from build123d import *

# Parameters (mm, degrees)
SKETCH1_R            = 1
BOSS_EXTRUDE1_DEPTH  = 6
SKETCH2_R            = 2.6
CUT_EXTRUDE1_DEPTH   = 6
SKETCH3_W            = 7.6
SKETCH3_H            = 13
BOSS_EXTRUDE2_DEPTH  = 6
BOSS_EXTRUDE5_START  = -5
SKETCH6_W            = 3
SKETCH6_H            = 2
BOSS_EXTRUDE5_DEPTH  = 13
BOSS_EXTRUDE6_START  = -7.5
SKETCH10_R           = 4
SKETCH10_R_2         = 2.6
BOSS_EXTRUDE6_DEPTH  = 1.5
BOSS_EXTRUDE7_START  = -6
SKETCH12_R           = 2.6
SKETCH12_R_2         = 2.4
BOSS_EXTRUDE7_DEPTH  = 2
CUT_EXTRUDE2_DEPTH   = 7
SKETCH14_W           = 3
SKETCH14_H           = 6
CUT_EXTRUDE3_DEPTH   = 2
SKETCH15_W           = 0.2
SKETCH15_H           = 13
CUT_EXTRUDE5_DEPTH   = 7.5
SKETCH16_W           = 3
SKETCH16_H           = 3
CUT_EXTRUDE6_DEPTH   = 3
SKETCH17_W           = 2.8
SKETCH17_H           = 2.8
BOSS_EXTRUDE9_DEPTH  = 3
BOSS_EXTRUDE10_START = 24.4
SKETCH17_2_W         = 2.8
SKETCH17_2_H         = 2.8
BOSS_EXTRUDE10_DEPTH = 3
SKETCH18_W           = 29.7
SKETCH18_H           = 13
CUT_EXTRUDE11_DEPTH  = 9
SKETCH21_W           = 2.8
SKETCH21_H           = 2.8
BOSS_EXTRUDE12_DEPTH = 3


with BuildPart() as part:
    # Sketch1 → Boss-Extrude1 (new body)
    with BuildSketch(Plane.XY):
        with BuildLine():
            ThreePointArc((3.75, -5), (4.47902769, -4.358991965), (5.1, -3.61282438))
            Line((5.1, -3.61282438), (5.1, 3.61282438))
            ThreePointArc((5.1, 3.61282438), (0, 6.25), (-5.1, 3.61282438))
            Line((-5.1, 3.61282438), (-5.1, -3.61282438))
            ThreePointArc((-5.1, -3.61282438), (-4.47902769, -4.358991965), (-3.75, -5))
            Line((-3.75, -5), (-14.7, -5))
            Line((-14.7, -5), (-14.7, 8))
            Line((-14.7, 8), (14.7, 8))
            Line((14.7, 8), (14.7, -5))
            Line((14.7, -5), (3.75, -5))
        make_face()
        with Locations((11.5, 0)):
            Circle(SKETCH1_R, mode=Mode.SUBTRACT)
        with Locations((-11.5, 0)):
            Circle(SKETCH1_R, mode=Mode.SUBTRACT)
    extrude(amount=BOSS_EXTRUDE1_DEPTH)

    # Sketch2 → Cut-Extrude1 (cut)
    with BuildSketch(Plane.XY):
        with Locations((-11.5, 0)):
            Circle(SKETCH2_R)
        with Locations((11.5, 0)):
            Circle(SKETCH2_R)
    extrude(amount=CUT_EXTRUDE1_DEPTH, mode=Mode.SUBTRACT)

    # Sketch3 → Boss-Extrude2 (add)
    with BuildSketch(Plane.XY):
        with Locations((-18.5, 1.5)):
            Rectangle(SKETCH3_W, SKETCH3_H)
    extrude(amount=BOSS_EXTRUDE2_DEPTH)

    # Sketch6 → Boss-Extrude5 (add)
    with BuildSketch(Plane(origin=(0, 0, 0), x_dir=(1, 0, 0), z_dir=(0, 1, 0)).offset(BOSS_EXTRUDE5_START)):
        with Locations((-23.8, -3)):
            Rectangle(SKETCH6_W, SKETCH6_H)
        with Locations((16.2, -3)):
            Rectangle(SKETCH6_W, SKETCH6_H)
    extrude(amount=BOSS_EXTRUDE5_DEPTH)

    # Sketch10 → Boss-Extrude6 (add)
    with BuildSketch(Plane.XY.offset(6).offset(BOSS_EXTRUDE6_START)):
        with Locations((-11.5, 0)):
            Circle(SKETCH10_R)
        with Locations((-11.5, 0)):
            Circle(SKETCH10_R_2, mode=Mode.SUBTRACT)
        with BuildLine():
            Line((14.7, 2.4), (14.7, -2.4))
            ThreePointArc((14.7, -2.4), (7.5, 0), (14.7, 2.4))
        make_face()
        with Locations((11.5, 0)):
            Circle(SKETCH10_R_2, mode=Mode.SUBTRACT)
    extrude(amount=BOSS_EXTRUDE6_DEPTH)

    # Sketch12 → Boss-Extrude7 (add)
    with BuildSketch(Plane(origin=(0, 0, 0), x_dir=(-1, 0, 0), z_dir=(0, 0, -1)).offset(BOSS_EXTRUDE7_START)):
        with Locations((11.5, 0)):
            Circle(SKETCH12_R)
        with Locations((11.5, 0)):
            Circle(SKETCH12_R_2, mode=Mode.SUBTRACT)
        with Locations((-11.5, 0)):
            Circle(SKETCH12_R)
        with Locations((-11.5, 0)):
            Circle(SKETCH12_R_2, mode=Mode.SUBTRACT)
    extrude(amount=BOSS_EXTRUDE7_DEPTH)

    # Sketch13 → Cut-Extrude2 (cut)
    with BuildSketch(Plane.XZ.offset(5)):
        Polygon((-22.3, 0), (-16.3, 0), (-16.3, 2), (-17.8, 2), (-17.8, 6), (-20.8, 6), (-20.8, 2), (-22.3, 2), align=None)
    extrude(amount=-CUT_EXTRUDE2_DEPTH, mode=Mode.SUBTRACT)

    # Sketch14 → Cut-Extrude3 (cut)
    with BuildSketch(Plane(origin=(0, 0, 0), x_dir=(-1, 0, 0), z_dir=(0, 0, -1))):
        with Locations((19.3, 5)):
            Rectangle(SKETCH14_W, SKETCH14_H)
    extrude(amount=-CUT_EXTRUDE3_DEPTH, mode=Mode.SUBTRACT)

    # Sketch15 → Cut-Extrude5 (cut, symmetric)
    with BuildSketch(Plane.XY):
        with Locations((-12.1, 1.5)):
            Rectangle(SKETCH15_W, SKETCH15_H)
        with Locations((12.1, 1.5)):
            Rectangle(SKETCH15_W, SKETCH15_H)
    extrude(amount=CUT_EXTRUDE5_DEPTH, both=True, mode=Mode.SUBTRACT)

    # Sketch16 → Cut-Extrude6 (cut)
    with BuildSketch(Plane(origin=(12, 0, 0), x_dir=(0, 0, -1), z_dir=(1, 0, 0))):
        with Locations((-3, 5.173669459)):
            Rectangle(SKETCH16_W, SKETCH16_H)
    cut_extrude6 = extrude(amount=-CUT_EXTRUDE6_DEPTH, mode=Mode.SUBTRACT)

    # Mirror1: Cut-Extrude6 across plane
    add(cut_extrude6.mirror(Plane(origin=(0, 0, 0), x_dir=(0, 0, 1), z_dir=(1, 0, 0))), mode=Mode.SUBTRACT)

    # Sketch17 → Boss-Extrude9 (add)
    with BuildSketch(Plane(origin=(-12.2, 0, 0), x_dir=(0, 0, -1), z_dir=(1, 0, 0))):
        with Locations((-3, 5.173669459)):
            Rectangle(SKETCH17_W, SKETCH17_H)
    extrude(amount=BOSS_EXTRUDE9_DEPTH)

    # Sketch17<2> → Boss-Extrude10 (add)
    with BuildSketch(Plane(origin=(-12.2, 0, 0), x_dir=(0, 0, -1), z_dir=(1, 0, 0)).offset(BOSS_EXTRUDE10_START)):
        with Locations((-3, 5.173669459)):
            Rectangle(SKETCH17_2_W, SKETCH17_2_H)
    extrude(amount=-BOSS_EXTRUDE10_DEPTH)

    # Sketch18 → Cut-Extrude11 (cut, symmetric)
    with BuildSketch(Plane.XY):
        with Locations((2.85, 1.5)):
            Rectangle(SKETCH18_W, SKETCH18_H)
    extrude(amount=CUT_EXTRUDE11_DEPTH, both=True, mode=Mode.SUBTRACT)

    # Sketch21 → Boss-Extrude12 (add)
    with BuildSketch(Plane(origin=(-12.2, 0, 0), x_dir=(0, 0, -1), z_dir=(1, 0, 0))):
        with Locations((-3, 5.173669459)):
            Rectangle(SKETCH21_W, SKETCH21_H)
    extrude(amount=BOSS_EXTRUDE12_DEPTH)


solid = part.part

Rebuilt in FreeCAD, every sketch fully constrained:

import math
import FreeCAD as App
import Part
import Sketcher

V = App.Vector
Q = App.Units.Quantity


def add_polygon(sketch, points):
    """Adds a closed chain of lines whose ends are joined by coincident constraints."""
    first, n = sketch.GeometryCount, len(points)
    for a, b in zip(points, points[1:] + points[:1]):
        sketch.addGeometry(Part.LineSegment(App.Vector(*a, 0), App.Vector(*b, 0)), False)
    for i in range(n):
        sketch.addConstraint(Sketcher.Constraint("Coincident", first + i, 2, first + (i + 1) % n, 1))

doc = App.newDocument("Part")
body = doc.addObject("PartDesign::Body", "Body")
body.AllowCompound = True

# Sketch on XY plane
sketch1 = body.newObject("Sketcher::SketchObject", "Sketch")
sketch1.AttachmentSupport = (doc.getObject("XY_Plane"), [""])
sketch1.MapMode = "FlatFace"
sketch1.addGeometry([
    Part.ArcOfCircle(Part.Circle(V(0, 0, 0), V(0, 0, 1), 6.25), math.radians(-53.130102), math.radians(-35.31364)),  # 0
    Part.LineSegment(V(3.75, -5, 0), V(14.7, -5, 0)),  # 1
    Part.LineSegment(V(14.7, -5, 0), V(14.7, 8, 0)),  # 2
    Part.LineSegment(V(14.7, 8, 0), V(-14.7, 8, 0)),  # 3
    Part.LineSegment(V(-14.7, 8, 0), V(-14.7, -5, 0)),  # 4
    Part.LineSegment(V(-14.7, -5, 0), V(-3.75, -5, 0)),  # 5
    Part.ArcOfCircle(Part.Circle(V(0, 0, 0), V(0, 0, 1), 6.25), math.radians(-144.68636), math.radians(-126.869898)),  # 6
    Part.LineSegment(V(-5.1, -3.612824, 0), V(-5.1, 3.612824, 0)),  # 7
    Part.ArcOfCircle(Part.Circle(V(0, 0, 0), V(0, 0, 1), 6.25), math.radians(35.31364), math.radians(144.68636)),  # 8
    Part.LineSegment(V(5.1, 3.612824, 0), V(5.1, -3.612824, 0)),  # 9
    Part.Circle(V(11.5, 0, 0), V(0, 0, 1), 1),  # 10
    Part.Circle(V(-11.5, 0, 0), V(0, 0, 1), 1),  # 11
], False)
sketch1.addConstraint([
    Sketcher.Constraint("Coincident", 0, 1, 1, 1),
    Sketcher.Constraint("Coincident", 1, 2, 2, 1),
    Sketcher.Constraint("Coincident", 2, 2, 3, 1),
    Sketcher.Constraint("Coincident", 3, 2, 4, 1),
    Sketcher.Constraint("Coincident", 4, 2, 5, 1),
    Sketcher.Constraint("Coincident", 5, 2, 6, 2),
    Sketcher.Constraint("Coincident", 6, 1, 7, 1),
    Sketcher.Constraint("Coincident", 7, 2, 8, 2),
    Sketcher.Constraint("Coincident", 8, 1, 9, 1),
    Sketcher.Constraint("Coincident", 9, 2, 0, 2),
    Sketcher.Constraint("Horizontal", 1),
    Sketcher.Constraint("Vertical", 2),
    Sketcher.Constraint("Horizontal", 3),
    Sketcher.Constraint("Vertical", 4),
    Sketcher.Constraint("Horizontal", 5),
    Sketcher.Constraint("Vertical", 7),
    Sketcher.Constraint("Vertical", 9),
    Sketcher.Constraint("Coincident", 0, 3, -1, 1),
    Sketcher.Constraint("Coincident", 6, 3, -1, 1),
    Sketcher.Constraint("Coincident", 8, 3, -1, 1),
    Sketcher.Constraint("Equal", 0, 6),
    Sketcher.Constraint("Equal", 6, 8),
    Sketcher.Constraint("Equal", 10, 11),
    Sketcher.Constraint("Symmetric", 10, 3, 11, 3, -1, 1),
    Sketcher.Constraint("Symmetric", 1, 2, 4, 2, -2),
    Sketcher.Constraint("PointOnObject", 10, 3, -1),
    Sketcher.Constraint("Horizontal", 7, 2, 8, 1),
    Sketcher.Constraint("Diameter", 10, Q("2 mm")),
    Sketcher.Constraint("DistanceY", 2, 1, 2, 2, Q("13 mm")),
    Sketcher.Constraint("Radius", 0, Q("6.25 mm")),
    Sketcher.Constraint("DistanceX", 3, 2, 3, 1, Q("29.4 mm")),
    Sketcher.Constraint("DistanceY", 0, 1, -1, 1, Q("5 mm")),
    Sketcher.Constraint("DistanceX", 11, 3, 10, 3, Q("23 mm")),
    Sketcher.Constraint("DistanceX", 6, 1, -1, 1, Q("5.1 mm")),
])
pad1 = body.newObject("PartDesign::Pad", "Pad")
pad1.Profile = sketch1
pad1.Length = 6

# Sketch on XY plane
sketch2 = body.newObject("Sketcher::SketchObject", "Sketch001")
sketch2.AttachmentSupport = (doc.getObject("XY_Plane"), [""])
sketch2.MapMode = "FlatFace"
sketch2.addGeometry([
    Part.Circle(V(-11.5, 0, 0), V(0, 0, 1), 2.6),
    Part.Circle(V(11.5, 0, 0), V(0, 0, 1), 2.6),
], False)
sketch2.addConstraint([
    Sketcher.Constraint("Equal", 0, 1),
    Sketcher.Constraint("Symmetric", 0, 3, 1, 3, -1, 1),
    Sketcher.Constraint("PointOnObject", 0, 3, -1),
    Sketcher.Constraint("Diameter", 0, Q("5.2 mm")),
    Sketcher.Constraint("DistanceX", 0, 3, 1, 3, Q("23 mm")),
])
pocket1 = body.newObject("PartDesign::Pocket", "Pocket")
pocket1.Profile = sketch2
pocket1.Length = 6
pocket1.Reversed = True

# Sketch on XY plane
sketch3 = body.newObject("Sketcher::SketchObject", "Sketch002")
sketch3.AttachmentSupport = (doc.getObject("XY_Plane"), [""])
sketch3.MapMode = "FlatFace"
add_polygon(sketch3, [(-22.3, 8), (-22.3, -5), (-14.7, -5), (-14.7, 8)])  # lines 0-3
sketch3.addConstraint([
    Sketcher.Constraint("Vertical", 0),
    Sketcher.Constraint("Horizontal", 1),
    Sketcher.Constraint("Vertical", 2),
    Sketcher.Constraint("Horizontal", 3),
    Sketcher.Constraint("DistanceY", 0, 2, 0, 1, Q("13 mm")),
    Sketcher.Constraint("DistanceX", 1, 1, 1, 2, Q("7.6 mm")),
    Sketcher.Constraint("DistanceY", 0, 2, -1, 1, Q("5 mm")),
    Sketcher.Constraint("DistanceX", 0, 2, -1, 1, Q("22.3 mm")),
])
pad2 = body.newObject("PartDesign::Pad", "Pad001")
pad2.Profile = sketch3
pad2.Length = 6

# Sketch on XZ plane
sketch4 = body.newObject("Sketcher::SketchObject", "Sketch003")
sketch4.AttachmentSupport = (doc.getObject("XZ_Plane"), [""])
sketch4.MapMode = "FlatFace"
sketch4.AttachmentOffset = App.Placement(V(0, 0, 5), App.Rotation())
add_polygon(sketch4, [(-25.3, 2), (-25.3, 4), (-22.3, 4), (-22.3, 2)])  # lines 0-3
add_polygon(sketch4, [(14.7, 2), (14.7, 4), (17.7, 4), (17.7, 2)])  # lines 4-7
sketch4.addConstraint([
    Sketcher.Constraint("Vertical", 0),
    Sketcher.Constraint("Horizontal", 1),
    Sketcher.Constraint("Vertical", 2),
    Sketcher.Constraint("Horizontal", 3),
    Sketcher.Constraint("Vertical", 4),
    Sketcher.Constraint("Horizontal", 5),
    Sketcher.Constraint("Vertical", 6),
    Sketcher.Constraint("Horizontal", 7),
    Sketcher.Constraint("Horizontal", 1, 2, 4, 2),
    Sketcher.Constraint("Horizontal", 3, 2, 6, 2),
    Sketcher.Constraint("Equal", 3, 5),
    Sketcher.Constraint("DistanceX", 1, 1, 1, 2, Q("3 mm")),
    Sketcher.Constraint("DistanceY", 0, 1, 0, 2, Q("2 mm")),
    Sketcher.Constraint("DistanceY", -1, 1, 0, 2, Q("4 mm")),
    Sketcher.Constraint("DistanceX", 1, 2, 4, 2, Q("37 mm")),
    Sketcher.Constraint("DistanceX", 0, 2, -1, 1, Q("25.3 mm")),
])
pad3 = body.newObject("PartDesign::Pad", "Pad002")
pad3.Profile = sketch4
pad3.Length = 13
pad3.Reversed = True

# Sketch on XY plane
sketch5 = body.newObject("Sketcher::SketchObject", "Sketch004")
sketch5.AttachmentSupport = (doc.getObject("XY_Plane"), [""])
sketch5.MapMode = "FlatFace"
sketch5.AttachmentOffset = App.Placement(V(0, 0, -1.5), App.Rotation())
sketch5.addGeometry([
    Part.Circle(V(-11.5, 0, 0), V(0, 0, 1), 4),  # 0
    Part.Circle(V(-11.5, 0, 0), V(0, 0, 1), 2.6),  # 1
    Part.LineSegment(V(14.7, -2.4, 0), V(14.7, 2.4, 0)),  # 2
    Part.ArcOfCircle(Part.Circle(V(11.5, 0, 0), V(0, 0, 1), 4), math.radians(36.869898), math.radians(323.130102)),  # 3
    Part.Circle(V(11.5, 0, 0), V(0, 0, 1), 2.6),  # 4
], False)
sketch5.addConstraint([
    Sketcher.Constraint("Coincident", 2, 1, 3, 2),
    Sketcher.Constraint("Coincident", 3, 1, 2, 2),
    Sketcher.Constraint("Vertical", 2),
    Sketcher.Constraint("Coincident", 1, 3, 0, 3),
    Sketcher.Constraint("Coincident", 4, 3, 3, 3),
    Sketcher.Constraint("Equal", 0, 3),
    Sketcher.Constraint("Equal", 1, 4),
    Sketcher.Constraint("Symmetric", 0, 3, 3, 3, -1, 1),
    Sketcher.Constraint("PointOnObject", 0, 3, -1),
    Sketcher.Constraint("Diameter", 0, Q("8 mm")),
    Sketcher.Constraint("Diameter", 1, Q("5.2 mm")),
    Sketcher.Constraint("DistanceY", 2, 1, 2, 2, Q("4.8 mm")),
    Sketcher.Constraint("DistanceX", 0, 3, 3, 3, Q("23 mm")),
])
pad4 = body.newObject("PartDesign::Pad", "Pad003")
pad4.Profile = sketch5
pad4.Length = 1.5

# Sketch on XY plane
sketch6 = body.newObject("Sketcher::SketchObject", "Sketch005")
sketch6.AttachmentSupport = (doc.getObject("XY_Plane"), [""])
sketch6.MapMode = "FlatFace"
sketch6.AttachmentOffset = App.Placement(V(0, 0, 6), App.Rotation())
sketch6.addGeometry([
    Part.Circle(V(-11.5, 0, 0), V(0, 0, 1), 2.6),
    Part.Circle(V(-11.5, 0, 0), V(0, 0, 1), 2.4),
    Part.Circle(V(11.5, 0, 0), V(0, 0, 1), 2.6),
    Part.Circle(V(11.5, 0, 0), V(0, 0, 1), 2.4),
], False)
sketch6.addConstraint([
    Sketcher.Constraint("Coincident", 1, 3, 0, 3),
    Sketcher.Constraint("Coincident", 3, 3, 2, 3),
    Sketcher.Constraint("Equal", 0, 2),
    Sketcher.Constraint("Equal", 1, 3),
    Sketcher.Constraint("Symmetric", 0, 3, 2, 3, -1, 1),
    Sketcher.Constraint("PointOnObject", 0, 3, -1),
    Sketcher.Constraint("Diameter", 0, Q("5.2 mm")),
    Sketcher.Constraint("Diameter", 1, Q("4.8 mm")),
    Sketcher.Constraint("DistanceX", 0, 3, 2, 3, Q("23 mm")),
])
pad5 = body.newObject("PartDesign::Pad", "Pad004")
pad5.Profile = sketch6
pad5.Length = 2
pad5.Reversed = True

# Sketch on XZ plane
sketch7 = body.newObject("Sketcher::SketchObject", "Sketch006")
sketch7.AttachmentSupport = (doc.getObject("XZ_Plane"), [""])
sketch7.MapMode = "FlatFace"
sketch7.AttachmentOffset = App.Placement(V(0, 0, 5), App.Rotation())
add_polygon(sketch7, [(-22.3, 0), (-16.3, 0), (-16.3, 2), (-17.8, 2), (-17.8, 6), (-20.8, 6), (-20.8, 2), (-22.3, 2)])  # lines 0-7
sketch7.addConstraint([
    Sketcher.Constraint("Horizontal", 0),
    Sketcher.Constraint("Vertical", 1),
    Sketcher.Constraint("Horizontal", 2),
    Sketcher.Constraint("Vertical", 3),
    Sketcher.Constraint("Horizontal", 4),
    Sketcher.Constraint("Vertical", 5),
    Sketcher.Constraint("Horizontal", 6),
    Sketcher.Constraint("Vertical", 7),
    Sketcher.Constraint("PointOnObject", 0, 2, -1),
    Sketcher.Constraint("Horizontal", 2, 2, 5, 2),
    Sketcher.Constraint("Equal", 2, 6),
    Sketcher.Constraint("DistanceX", 0, 1, 0, 2, Q("6 mm")),
    Sketcher.Constraint("DistanceX", 4, 2, 4, 1, Q("3 mm")),
    Sketcher.Constraint("DistanceY", 1, 1, 1, 2, Q("2 mm")),
    Sketcher.Constraint("DistanceY", 3, 1, 3, 2, Q("4 mm")),
    Sketcher.Constraint("DistanceX", 0, 2, -1, 1, Q("16.3 mm")),
])
pocket2 = body.newObject("PartDesign::Pocket", "Pocket001")
pocket2.Profile = sketch7
pocket2.Length = 7

# Sketch on XY plane
sketch8 = body.newObject("Sketcher::SketchObject", "Sketch007")
sketch8.AttachmentSupport = (doc.getObject("XY_Plane"), [""])
sketch8.MapMode = "FlatFace"
add_polygon(sketch8, [(-17.8, 8), (-17.8, 2), (-20.8, 2), (-20.8, 8)])  # lines 0-3
sketch8.addConstraint([
    Sketcher.Constraint("Vertical", 0),
    Sketcher.Constraint("Horizontal", 1),
    Sketcher.Constraint("Vertical", 2),
    Sketcher.Constraint("Horizontal", 3),
    Sketcher.Constraint("DistanceX", 1, 2, 1, 1, Q("3 mm")),
    Sketcher.Constraint("DistanceY", 0, 2, 0, 1, Q("6 mm")),
    Sketcher.Constraint("DistanceY", -1, 1, 0, 2, Q("2 mm")),
    Sketcher.Constraint("DistanceX", 0, 2, -1, 1, Q("17.8 mm")),
])
pocket3 = body.newObject("PartDesign::Pocket", "Pocket002")
pocket3.Profile = sketch8
pocket3.Length = 2
pocket3.Reversed = True

# Sketch on XY plane
sketch9 = body.newObject("Sketcher::SketchObject", "Sketch008")
sketch9.AttachmentSupport = (doc.getObject("XY_Plane"), [""])
sketch9.MapMode = "FlatFace"
add_polygon(sketch9, [(-12.2, 8), (-12.2, -5), (-12, -5), (-12, 8)])  # lines 0-3
add_polygon(sketch9, [(12, 8), (12, -5), (12.2, -5), (12.2, 8)])  # lines 4-7
sketch9.addConstraint([
    Sketcher.Constraint("Vertical", 0),
    Sketcher.Constraint("Horizontal", 1),
    Sketcher.Constraint("Vertical", 2),
    Sketcher.Constraint("Horizontal", 3),
    Sketcher.Constraint("Vertical", 4),
    Sketcher.Constraint("Horizontal", 5),
    Sketcher.Constraint("Vertical", 6),
    Sketcher.Constraint("Horizontal", 7),
    Sketcher.Constraint("Symmetric", 1, 2, 4, 2, -2),
    Sketcher.Constraint("Symmetric", 3, 2, 6, 2, -2),
    Sketcher.Constraint("DistanceY", 0, 2, 0, 1, Q("13 mm")),
    Sketcher.Constraint("DistanceX", 1, 1, 1, 2, Q("0.2 mm")),
    Sketcher.Constraint("DistanceY", 0, 2, -1, 1, Q("5 mm")),
    Sketcher.Constraint("DistanceX", 1, 2, -1, 1, Q("12 mm")),
])
pocket4 = body.newObject("PartDesign::Pocket", "Pocket003")
pocket4.Profile = sketch9
pocket4.Length = 15
pocket4.Midplane = True

# Sketch on YZ plane
sketch10 = body.newObject("Sketcher::SketchObject", "Sketch009")
sketch10.AttachmentSupport = (doc.getObject("YZ_Plane"), [""])
sketch10.MapMode = "FlatFace"
sketch10.AttachmentOffset = App.Placement(V(0, 0, 12), App.Rotation())
add_polygon(sketch10, [(6.673669, 4.5), (3.673669, 4.5), (3.673669, 1.5), (6.673669, 1.5)])  # lines 0-3
sketch10.addConstraint([
    Sketcher.Constraint("Horizontal", 0),
    Sketcher.Constraint("Vertical", 1),
    Sketcher.Constraint("Horizontal", 2),
    Sketcher.Constraint("Vertical", 3),
    Sketcher.Constraint("Equal", 2, 1),
    Sketcher.Constraint("DistanceX", 0, 2, 0, 1, Q("3 mm")),
    Sketcher.Constraint("DistanceY", -1, 1, 0, 2, Q("4.5 mm")),
    Sketcher.Constraint("DistanceX", -1, 1, 0, 2, Q("3.673669 mm")),
])
pocket5 = body.newObject("PartDesign::Pocket", "Pocket004")
pocket5.Profile = sketch10
pocket5.Length = 3
doc.recompute()

mirrored = body.newObject("PartDesign::Mirrored", "Mirrored")
mirrored.Originals = [pocket5]
mirrored.MirrorPlane = (doc.getObject("YZ_Plane"), [""])
body.Tip = mirrored

# Sketch on YZ plane
sketch11 = body.newObject("Sketcher::SketchObject", "Sketch010")
sketch11.AttachmentSupport = (doc.getObject("YZ_Plane"), [""])
sketch11.MapMode = "FlatFace"
sketch11.AttachmentOffset = App.Placement(V(0, 0, -12.2), App.Rotation())
add_polygon(sketch11, [(6.573669, 4.4), (3.773669, 4.4), (3.773669, 1.6), (6.573669, 1.6)])  # lines 0-3
sketch11.addConstraint([
    Sketcher.Constraint("Horizontal", 0),
    Sketcher.Constraint("Vertical", 1),
    Sketcher.Constraint("Horizontal", 2),
    Sketcher.Constraint("Vertical", 3),
    Sketcher.Constraint("Equal", 2, 1),
    Sketcher.Constraint("DistanceX", 0, 2, 0, 1, Q("2.8 mm")),
    Sketcher.Constraint("DistanceY", -1, 1, 0, 2, Q("4.4 mm")),
    Sketcher.Constraint("DistanceX", -1, 1, 0, 2, Q("3.773669 mm")),
])
pad6 = body.newObject("PartDesign::Pad", "Pad005")
pad6.Profile = sketch11
pad6.Length = 3

# Sketch on YZ plane
sketch12 = body.newObject("Sketcher::SketchObject", "Sketch011")
sketch12.AttachmentSupport = (doc.getObject("YZ_Plane"), [""])
sketch12.MapMode = "FlatFace"
sketch12.AttachmentOffset = App.Placement(V(0, 0, 12.2), App.Rotation())
add_polygon(sketch12, [(6.573669, 4.4), (3.773669, 4.4), (3.773669, 1.6), (6.573669, 1.6)])  # lines 0-3
sketch12.addConstraint([
    Sketcher.Constraint("Horizontal", 0),
    Sketcher.Constraint("Vertical", 1),
    Sketcher.Constraint("Horizontal", 2),
    Sketcher.Constraint("Vertical", 3),
    Sketcher.Constraint("Equal", 2, 1),
    Sketcher.Constraint("DistanceX", 0, 2, 0, 1, Q("2.8 mm")),
    Sketcher.Constraint("DistanceY", -1, 1, 0, 2, Q("4.4 mm")),
    Sketcher.Constraint("DistanceX", -1, 1, 0, 2, Q("3.773669 mm")),
])
pad7 = body.newObject("PartDesign::Pad", "Pad006")
pad7.Profile = sketch12
pad7.Length = 3
pad7.Reversed = True

# Sketch on XY plane
sketch13 = body.newObject("Sketcher::SketchObject", "Sketch012")
sketch13.AttachmentSupport = (doc.getObject("XY_Plane"), [""])
sketch13.MapMode = "FlatFace"
add_polygon(sketch13, [(-12, 8), (-12, -5), (17.7, -5), (17.7, 8)])  # lines 0-3
sketch13.addConstraint([
    Sketcher.Constraint("Vertical", 0),
    Sketcher.Constraint("Horizontal", 1),
    Sketcher.Constraint("Vertical", 2),
    Sketcher.Constraint("Horizontal", 3),
    Sketcher.Constraint("DistanceY", 0, 2, 0, 1, Q("13 mm")),
    Sketcher.Constraint("DistanceX", 1, 1, 1, 2, Q("29.7 mm")),
    Sketcher.Constraint("DistanceX", 0, 2, -1, 1, Q("12 mm")),
    Sketcher.Constraint("DistanceY", 0, 2, -1, 1, Q("5 mm")),
])
pocket6 = body.newObject("PartDesign::Pocket", "Pocket005")
pocket6.Profile = sketch13
pocket6.Length = 18
pocket6.Midplane = True

# Sketch on YZ plane
sketch14 = body.newObject("Sketcher::SketchObject", "Sketch013")
sketch14.AttachmentSupport = (doc.getObject("YZ_Plane"), [""])
sketch14.MapMode = "FlatFace"
sketch14.AttachmentOffset = App.Placement(V(0, 0, -12.2), App.Rotation())
add_polygon(sketch14, [(6.573669, 4.4), (3.773669, 4.4), (3.773669, 1.6), (6.573669, 1.6)])  # lines 0-3
sketch14.addConstraint([
    Sketcher.Constraint("Horizontal", 0),
    Sketcher.Constraint("Vertical", 1),
    Sketcher.Constraint("Horizontal", 2),
    Sketcher.Constraint("Vertical", 3),
    Sketcher.Constraint("Equal", 2, 1),
    Sketcher.Constraint("DistanceX", 0, 2, 0, 1, Q("2.8 mm")),
    Sketcher.Constraint("DistanceY", -1, 1, 0, 2, Q("4.4 mm")),
    Sketcher.Constraint("DistanceX", -1, 1, 0, 2, Q("3.773669 mm")),
])
pad8 = body.newObject("PartDesign::Pad", "Pad007")
pad8.Profile = sketch14
pad8.Length = 3

doc.recompute()
